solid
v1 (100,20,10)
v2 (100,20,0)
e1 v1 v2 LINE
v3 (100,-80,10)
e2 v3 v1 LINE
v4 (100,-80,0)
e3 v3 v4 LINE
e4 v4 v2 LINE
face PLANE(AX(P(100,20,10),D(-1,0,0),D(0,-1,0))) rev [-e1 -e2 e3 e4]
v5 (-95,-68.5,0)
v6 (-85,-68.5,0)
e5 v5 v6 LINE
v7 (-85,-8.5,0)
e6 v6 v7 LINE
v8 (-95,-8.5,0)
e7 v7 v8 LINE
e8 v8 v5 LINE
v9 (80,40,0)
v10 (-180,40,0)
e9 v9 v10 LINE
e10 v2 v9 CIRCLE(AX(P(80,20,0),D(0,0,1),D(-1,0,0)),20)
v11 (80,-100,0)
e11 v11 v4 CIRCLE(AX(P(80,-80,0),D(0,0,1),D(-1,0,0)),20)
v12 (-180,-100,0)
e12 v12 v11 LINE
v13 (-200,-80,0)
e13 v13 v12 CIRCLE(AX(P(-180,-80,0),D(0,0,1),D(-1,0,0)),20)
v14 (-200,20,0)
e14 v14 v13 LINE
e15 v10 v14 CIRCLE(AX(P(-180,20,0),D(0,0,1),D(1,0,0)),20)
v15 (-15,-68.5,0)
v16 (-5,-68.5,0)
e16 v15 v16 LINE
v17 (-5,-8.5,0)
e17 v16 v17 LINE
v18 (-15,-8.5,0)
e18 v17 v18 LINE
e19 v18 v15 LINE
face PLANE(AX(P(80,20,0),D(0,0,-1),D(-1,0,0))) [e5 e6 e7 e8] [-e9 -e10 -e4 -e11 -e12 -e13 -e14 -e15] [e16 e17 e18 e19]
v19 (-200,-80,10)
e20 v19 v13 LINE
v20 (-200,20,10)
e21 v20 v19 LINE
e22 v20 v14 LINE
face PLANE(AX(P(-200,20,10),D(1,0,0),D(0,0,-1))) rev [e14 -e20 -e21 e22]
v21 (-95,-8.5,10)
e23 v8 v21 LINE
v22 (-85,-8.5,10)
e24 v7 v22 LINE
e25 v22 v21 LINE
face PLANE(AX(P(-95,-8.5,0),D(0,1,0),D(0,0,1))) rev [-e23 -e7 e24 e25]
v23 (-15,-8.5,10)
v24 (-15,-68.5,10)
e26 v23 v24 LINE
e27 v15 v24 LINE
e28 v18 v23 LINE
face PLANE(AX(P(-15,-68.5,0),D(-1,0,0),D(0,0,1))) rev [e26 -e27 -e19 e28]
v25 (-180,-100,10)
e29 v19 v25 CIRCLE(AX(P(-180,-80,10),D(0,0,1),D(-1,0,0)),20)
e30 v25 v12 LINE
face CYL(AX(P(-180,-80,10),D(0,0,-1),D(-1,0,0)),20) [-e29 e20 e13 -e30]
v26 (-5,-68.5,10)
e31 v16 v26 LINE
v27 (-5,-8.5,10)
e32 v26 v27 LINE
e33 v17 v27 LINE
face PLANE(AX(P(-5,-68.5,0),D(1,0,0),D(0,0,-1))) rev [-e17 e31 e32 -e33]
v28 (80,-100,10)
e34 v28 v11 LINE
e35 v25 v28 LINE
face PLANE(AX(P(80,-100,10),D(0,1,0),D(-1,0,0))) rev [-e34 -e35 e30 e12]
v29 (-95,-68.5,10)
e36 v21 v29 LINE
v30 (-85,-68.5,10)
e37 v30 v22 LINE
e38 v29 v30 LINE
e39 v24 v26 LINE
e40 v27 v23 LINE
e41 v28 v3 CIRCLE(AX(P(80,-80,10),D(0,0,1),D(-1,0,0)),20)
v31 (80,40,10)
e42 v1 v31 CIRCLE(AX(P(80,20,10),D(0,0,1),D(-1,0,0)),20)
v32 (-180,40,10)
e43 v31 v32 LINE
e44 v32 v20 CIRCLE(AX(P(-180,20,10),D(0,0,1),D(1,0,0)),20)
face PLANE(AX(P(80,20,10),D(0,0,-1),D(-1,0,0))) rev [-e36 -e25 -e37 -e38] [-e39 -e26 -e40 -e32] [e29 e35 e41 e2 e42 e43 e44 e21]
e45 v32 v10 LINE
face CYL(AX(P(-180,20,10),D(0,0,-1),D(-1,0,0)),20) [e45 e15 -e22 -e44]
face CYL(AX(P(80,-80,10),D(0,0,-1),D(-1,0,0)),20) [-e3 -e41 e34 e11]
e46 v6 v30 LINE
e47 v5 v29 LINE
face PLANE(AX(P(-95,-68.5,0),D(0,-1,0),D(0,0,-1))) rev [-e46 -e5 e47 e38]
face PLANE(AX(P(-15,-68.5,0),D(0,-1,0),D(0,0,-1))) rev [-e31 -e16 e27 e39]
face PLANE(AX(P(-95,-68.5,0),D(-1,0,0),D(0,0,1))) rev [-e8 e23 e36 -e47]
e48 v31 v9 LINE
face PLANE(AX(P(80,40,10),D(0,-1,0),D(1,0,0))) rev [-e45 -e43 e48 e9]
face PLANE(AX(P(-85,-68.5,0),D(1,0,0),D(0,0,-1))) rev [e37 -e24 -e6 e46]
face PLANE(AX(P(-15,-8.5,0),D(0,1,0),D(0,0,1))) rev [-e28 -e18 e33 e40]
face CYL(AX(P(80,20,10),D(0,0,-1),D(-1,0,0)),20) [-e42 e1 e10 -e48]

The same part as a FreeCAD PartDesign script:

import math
import FreeCAD as App
import Part
import Sketcher

V = App.Vector

doc = App.newDocument("Part")
params = doc.addObject("Spreadsheet::Sheet", "Params")
for row, (alias, value) in enumerate([
    ("sketch1_radius", "20 mm"),
    ("sketch1_width", "260 mm"),
    ("sketch1_height", "100 mm"),
    ("pad1_length", "10 mm"),
    ("sketch2_width", "10 mm"),
    ("sketch2_height", "60 mm"),
    ("pocket1_length", "10 mm"),
], start=1):
    params.set(f"A{row}", alias)
    params.set(f"B{row}", "=" + value)
    params.setAlias(f"B{row}", alias)

body = doc.addObject("PartDesign::Body", "Body")

sketch1 = body.newObject("Sketcher::SketchObject", "Sketch")
sketch1.AttachmentSupport = (doc.getObject("XY_Plane"), [""])
sketch1.MapMode = "FlatFace"
sketch1.addGeometry(Part.LineSegment(V(80, 40, 0), V(-180, 40, 0)), False)
sketch1.addGeometry(Part.ArcOfCircle(Part.Circle(V(-180, 20, 0), V(0, 0, 1), 20), math.radians(90), math.radians(180)), False)
sketch1.addGeometry(Part.LineSegment(V(-200, 20, 0), V(-200, -80, 0)), False)
sketch1.addGeometry(Part.ArcOfCircle(Part.Circle(V(-180, -80, 0), V(0, 0, 1), 20), math.radians(180), math.radians(270)), False)
sketch1.addGeometry(Part.LineSegment(V(-180, -100, 0), V(80, -100, 0)), False)
sketch1.addGeometry(Part.ArcOfCircle(Part.Circle(V(80, -80, 0), V(0, 0, 1), 20), math.radians(-90), math.radians(0)), False)
sketch1.addGeometry(Part.LineSegment(V(100, -80, 0), V(100, 20, 0)), False)
sketch1.addGeometry(Part.ArcOfCircle(Part.Circle(V(80, 20, 0), V(0, 0, 1), 20), math.radians(0), math.radians(90)), False)
sketch1.addConstraint(Sketcher.Constraint("Tangent", 0, 2, 1, 1))
sketch1.addConstraint(Sketcher.Constraint("Tangent", 1, 2, 2, 1))
sketch1.addConstraint(Sketcher.Constraint("Tangent", 2, 2, 3, 1))
sketch1.addConstraint(Sketcher.Constraint("Tangent", 3, 2, 4, 1))
sketch1.addConstraint(Sketcher.Constraint("Tangent", 4, 2, 5, 1))
sketch1.addConstraint(Sketcher.Constraint("Tangent", 5, 2, 6, 1))
sketch1.addConstraint(Sketcher.Constraint("Tangent", 6, 2, 7, 1))
sketch1.addConstraint(Sketcher.Constraint("Tangent", 7, 2, 0, 1))
sketch1.addConstraint(Sketcher.Constraint("Horizontal", 0))
sketch1.addConstraint(Sketcher.Constraint("Vertical", 2))
sketch1.addConstraint(Sketcher.Constraint("Horizontal", 4))
sketch1.addConstraint(Sketcher.Constraint("Vertical", 6))
sketch1.addConstraint(Sketcher.Constraint("Equal", 1, 3))
sketch1.addConstraint(Sketcher.Constraint("Equal", 3, 5))
sketch1.addConstraint(Sketcher.Constraint("Equal", 5, 7))
sketch1.addConstraint(Sketcher.Constraint("Radius", 1, 20.0))
sketch1.addConstraint(Sketcher.Constraint("DistanceX", 0, 2, 0, 1, 260.0))
sketch1.addConstraint(Sketcher.Constraint("DistanceY", 2, 2, 2, 1, 100.0))
sketch1.addConstraint(Sketcher.Constraint("DistanceX", 1, 3, -1, 1, 180.0))
sketch1.addConstraint(Sketcher.Constraint("DistanceY", -1, 1, 1, 3, 20.0))
sketch1.setExpression("Constraints[15]", "Params.sketch1_radius")
sketch1.setExpression("Constraints[16]", "Params.sketch1_width")
sketch1.setExpression("Constraints[17]", "Params.sketch1_height")
pad1 = body.newObject("PartDesign::Pad", "Pad")
pad1.Profile = sketch1
pad1.setExpression("Length", "Params.pad1_length")

sketch2 = body.newObject("Sketcher::SketchObject", "Sketch001")
sketch2.AttachmentSupport = (doc.getObject("XY_Plane"), [""])
sketch2.MapMode = "FlatFace"
sketch2.AttachmentOffset = App.Placement(V(0, 0, 10), App.Rotation())
sketch2.addGeometry(Part.LineSegment(V(-95, -8.5, 0), V(-95, -68.5, 0)), False)
sketch2.addGeometry(Part.LineSegment(V(-95, -68.5, 0), V(-85, -68.5, 0)), False)
sketch2.addGeometry(Part.LineSegment(V(-85, -68.5, 0), V(-85, -8.5, 0)), False)
sketch2.addGeometry(Part.LineSegment(V(-85, -8.5, 0), V(-95, -8.5, 0)), False)
sketch2.addGeometry(Part.LineSegment(V(-15, -8.5, 0), V(-15, -68.5, 0)), False)
sketch2.addGeometry(Part.LineSegment(V(-15, -68.5, 0), V(-5, -68.5, 0)), False)
sketch2.addGeometry(Part.LineSegment(V(-5, -68.5, 0), V(-5, -8.5, 0)), False)
sketch2.addGeometry(Part.LineSegment(V(-5, -8.5, 0), V(-15, -8.5, 0)), False)
sketch2.addConstraint(Sketcher.Constraint("Coincident", 0, 2, 1, 1))
sketch2.addConstraint(Sketcher.Constraint("Coincident", 1, 2, 2, 1))
sketch2.addConstraint(Sketcher.Constraint("Coincident", 2, 2, 3, 1))
sketch2.addConstraint(Sketcher.Constraint("Coincident", 3, 2, 0, 1))
sketch2.addConstraint(Sketcher.Constraint("Coincident", 4, 2, 5, 1))
sketch2.addConstraint(Sketcher.Constraint("Coincident", 5, 2, 6, 1))
sketch2.addConstraint(Sketcher.Constraint("Coincident", 6, 2, 7, 1))
sketch2.addConstraint(Sketcher.Constraint("Coincident", 7, 2, 4, 1))
sketch2.addConstraint(Sketcher.Constraint("Vertical", 0))
sketch2.addConstraint(Sketcher.Constraint("Horizontal", 1))
sketch2.addConstraint(Sketcher.Constraint("Vertical", 2))
sketch2.addConstraint(Sketcher.Constraint("Horizontal", 3))
sketch2.addConstraint(Sketcher.Constraint("Vertical", 4))
sketch2.addConstraint(Sketcher.Constraint("Horizontal", 5))
sketch2.addConstraint(Sketcher.Constraint("Vertical", 6))
sketch2.addConstraint(Sketcher.Constraint("Horizontal", 7))
sketch2.addConstraint(Sketcher.Constraint("Horizontal", 1, 2, 4, 2))
sketch2.addConstraint(Sketcher.Constraint("Horizontal", 3, 2, 6, 2))
sketch2.addConstraint(Sketcher.Constraint("Equal", 3, 5))
sketch2.addConstraint(Sketcher.Constraint("DistanceX", 1, 1, 1, 2, 10.0))
sketch2.addConstraint(Sketcher.Constraint("DistanceY", 0, 2, 0, 1, 60.0))
sketch2.addConstraint(Sketcher.Constraint("DistanceX", 0, 2, -1, 1, 95.0))
sketch2.addConstraint(Sketcher.Constraint("DistanceX", 4, 2, -1, 1, 15.0))
sketch2.addConstraint(Sketcher.Constraint("DistanceY", 0, 2, -1, 1, 68.5))
sketch2.setExpression("Constraints[19]", "Params.sketch2_width")
sketch2.setExpression("Constraints[20]", "Params.sketch2_height")
pocket1 = body.newObject("PartDesign::Pocket", "Pocket")
pocket1.Profile = sketch2
pocket1.setExpression("Length", "Params.pocket1_length")

doc.recompute()
